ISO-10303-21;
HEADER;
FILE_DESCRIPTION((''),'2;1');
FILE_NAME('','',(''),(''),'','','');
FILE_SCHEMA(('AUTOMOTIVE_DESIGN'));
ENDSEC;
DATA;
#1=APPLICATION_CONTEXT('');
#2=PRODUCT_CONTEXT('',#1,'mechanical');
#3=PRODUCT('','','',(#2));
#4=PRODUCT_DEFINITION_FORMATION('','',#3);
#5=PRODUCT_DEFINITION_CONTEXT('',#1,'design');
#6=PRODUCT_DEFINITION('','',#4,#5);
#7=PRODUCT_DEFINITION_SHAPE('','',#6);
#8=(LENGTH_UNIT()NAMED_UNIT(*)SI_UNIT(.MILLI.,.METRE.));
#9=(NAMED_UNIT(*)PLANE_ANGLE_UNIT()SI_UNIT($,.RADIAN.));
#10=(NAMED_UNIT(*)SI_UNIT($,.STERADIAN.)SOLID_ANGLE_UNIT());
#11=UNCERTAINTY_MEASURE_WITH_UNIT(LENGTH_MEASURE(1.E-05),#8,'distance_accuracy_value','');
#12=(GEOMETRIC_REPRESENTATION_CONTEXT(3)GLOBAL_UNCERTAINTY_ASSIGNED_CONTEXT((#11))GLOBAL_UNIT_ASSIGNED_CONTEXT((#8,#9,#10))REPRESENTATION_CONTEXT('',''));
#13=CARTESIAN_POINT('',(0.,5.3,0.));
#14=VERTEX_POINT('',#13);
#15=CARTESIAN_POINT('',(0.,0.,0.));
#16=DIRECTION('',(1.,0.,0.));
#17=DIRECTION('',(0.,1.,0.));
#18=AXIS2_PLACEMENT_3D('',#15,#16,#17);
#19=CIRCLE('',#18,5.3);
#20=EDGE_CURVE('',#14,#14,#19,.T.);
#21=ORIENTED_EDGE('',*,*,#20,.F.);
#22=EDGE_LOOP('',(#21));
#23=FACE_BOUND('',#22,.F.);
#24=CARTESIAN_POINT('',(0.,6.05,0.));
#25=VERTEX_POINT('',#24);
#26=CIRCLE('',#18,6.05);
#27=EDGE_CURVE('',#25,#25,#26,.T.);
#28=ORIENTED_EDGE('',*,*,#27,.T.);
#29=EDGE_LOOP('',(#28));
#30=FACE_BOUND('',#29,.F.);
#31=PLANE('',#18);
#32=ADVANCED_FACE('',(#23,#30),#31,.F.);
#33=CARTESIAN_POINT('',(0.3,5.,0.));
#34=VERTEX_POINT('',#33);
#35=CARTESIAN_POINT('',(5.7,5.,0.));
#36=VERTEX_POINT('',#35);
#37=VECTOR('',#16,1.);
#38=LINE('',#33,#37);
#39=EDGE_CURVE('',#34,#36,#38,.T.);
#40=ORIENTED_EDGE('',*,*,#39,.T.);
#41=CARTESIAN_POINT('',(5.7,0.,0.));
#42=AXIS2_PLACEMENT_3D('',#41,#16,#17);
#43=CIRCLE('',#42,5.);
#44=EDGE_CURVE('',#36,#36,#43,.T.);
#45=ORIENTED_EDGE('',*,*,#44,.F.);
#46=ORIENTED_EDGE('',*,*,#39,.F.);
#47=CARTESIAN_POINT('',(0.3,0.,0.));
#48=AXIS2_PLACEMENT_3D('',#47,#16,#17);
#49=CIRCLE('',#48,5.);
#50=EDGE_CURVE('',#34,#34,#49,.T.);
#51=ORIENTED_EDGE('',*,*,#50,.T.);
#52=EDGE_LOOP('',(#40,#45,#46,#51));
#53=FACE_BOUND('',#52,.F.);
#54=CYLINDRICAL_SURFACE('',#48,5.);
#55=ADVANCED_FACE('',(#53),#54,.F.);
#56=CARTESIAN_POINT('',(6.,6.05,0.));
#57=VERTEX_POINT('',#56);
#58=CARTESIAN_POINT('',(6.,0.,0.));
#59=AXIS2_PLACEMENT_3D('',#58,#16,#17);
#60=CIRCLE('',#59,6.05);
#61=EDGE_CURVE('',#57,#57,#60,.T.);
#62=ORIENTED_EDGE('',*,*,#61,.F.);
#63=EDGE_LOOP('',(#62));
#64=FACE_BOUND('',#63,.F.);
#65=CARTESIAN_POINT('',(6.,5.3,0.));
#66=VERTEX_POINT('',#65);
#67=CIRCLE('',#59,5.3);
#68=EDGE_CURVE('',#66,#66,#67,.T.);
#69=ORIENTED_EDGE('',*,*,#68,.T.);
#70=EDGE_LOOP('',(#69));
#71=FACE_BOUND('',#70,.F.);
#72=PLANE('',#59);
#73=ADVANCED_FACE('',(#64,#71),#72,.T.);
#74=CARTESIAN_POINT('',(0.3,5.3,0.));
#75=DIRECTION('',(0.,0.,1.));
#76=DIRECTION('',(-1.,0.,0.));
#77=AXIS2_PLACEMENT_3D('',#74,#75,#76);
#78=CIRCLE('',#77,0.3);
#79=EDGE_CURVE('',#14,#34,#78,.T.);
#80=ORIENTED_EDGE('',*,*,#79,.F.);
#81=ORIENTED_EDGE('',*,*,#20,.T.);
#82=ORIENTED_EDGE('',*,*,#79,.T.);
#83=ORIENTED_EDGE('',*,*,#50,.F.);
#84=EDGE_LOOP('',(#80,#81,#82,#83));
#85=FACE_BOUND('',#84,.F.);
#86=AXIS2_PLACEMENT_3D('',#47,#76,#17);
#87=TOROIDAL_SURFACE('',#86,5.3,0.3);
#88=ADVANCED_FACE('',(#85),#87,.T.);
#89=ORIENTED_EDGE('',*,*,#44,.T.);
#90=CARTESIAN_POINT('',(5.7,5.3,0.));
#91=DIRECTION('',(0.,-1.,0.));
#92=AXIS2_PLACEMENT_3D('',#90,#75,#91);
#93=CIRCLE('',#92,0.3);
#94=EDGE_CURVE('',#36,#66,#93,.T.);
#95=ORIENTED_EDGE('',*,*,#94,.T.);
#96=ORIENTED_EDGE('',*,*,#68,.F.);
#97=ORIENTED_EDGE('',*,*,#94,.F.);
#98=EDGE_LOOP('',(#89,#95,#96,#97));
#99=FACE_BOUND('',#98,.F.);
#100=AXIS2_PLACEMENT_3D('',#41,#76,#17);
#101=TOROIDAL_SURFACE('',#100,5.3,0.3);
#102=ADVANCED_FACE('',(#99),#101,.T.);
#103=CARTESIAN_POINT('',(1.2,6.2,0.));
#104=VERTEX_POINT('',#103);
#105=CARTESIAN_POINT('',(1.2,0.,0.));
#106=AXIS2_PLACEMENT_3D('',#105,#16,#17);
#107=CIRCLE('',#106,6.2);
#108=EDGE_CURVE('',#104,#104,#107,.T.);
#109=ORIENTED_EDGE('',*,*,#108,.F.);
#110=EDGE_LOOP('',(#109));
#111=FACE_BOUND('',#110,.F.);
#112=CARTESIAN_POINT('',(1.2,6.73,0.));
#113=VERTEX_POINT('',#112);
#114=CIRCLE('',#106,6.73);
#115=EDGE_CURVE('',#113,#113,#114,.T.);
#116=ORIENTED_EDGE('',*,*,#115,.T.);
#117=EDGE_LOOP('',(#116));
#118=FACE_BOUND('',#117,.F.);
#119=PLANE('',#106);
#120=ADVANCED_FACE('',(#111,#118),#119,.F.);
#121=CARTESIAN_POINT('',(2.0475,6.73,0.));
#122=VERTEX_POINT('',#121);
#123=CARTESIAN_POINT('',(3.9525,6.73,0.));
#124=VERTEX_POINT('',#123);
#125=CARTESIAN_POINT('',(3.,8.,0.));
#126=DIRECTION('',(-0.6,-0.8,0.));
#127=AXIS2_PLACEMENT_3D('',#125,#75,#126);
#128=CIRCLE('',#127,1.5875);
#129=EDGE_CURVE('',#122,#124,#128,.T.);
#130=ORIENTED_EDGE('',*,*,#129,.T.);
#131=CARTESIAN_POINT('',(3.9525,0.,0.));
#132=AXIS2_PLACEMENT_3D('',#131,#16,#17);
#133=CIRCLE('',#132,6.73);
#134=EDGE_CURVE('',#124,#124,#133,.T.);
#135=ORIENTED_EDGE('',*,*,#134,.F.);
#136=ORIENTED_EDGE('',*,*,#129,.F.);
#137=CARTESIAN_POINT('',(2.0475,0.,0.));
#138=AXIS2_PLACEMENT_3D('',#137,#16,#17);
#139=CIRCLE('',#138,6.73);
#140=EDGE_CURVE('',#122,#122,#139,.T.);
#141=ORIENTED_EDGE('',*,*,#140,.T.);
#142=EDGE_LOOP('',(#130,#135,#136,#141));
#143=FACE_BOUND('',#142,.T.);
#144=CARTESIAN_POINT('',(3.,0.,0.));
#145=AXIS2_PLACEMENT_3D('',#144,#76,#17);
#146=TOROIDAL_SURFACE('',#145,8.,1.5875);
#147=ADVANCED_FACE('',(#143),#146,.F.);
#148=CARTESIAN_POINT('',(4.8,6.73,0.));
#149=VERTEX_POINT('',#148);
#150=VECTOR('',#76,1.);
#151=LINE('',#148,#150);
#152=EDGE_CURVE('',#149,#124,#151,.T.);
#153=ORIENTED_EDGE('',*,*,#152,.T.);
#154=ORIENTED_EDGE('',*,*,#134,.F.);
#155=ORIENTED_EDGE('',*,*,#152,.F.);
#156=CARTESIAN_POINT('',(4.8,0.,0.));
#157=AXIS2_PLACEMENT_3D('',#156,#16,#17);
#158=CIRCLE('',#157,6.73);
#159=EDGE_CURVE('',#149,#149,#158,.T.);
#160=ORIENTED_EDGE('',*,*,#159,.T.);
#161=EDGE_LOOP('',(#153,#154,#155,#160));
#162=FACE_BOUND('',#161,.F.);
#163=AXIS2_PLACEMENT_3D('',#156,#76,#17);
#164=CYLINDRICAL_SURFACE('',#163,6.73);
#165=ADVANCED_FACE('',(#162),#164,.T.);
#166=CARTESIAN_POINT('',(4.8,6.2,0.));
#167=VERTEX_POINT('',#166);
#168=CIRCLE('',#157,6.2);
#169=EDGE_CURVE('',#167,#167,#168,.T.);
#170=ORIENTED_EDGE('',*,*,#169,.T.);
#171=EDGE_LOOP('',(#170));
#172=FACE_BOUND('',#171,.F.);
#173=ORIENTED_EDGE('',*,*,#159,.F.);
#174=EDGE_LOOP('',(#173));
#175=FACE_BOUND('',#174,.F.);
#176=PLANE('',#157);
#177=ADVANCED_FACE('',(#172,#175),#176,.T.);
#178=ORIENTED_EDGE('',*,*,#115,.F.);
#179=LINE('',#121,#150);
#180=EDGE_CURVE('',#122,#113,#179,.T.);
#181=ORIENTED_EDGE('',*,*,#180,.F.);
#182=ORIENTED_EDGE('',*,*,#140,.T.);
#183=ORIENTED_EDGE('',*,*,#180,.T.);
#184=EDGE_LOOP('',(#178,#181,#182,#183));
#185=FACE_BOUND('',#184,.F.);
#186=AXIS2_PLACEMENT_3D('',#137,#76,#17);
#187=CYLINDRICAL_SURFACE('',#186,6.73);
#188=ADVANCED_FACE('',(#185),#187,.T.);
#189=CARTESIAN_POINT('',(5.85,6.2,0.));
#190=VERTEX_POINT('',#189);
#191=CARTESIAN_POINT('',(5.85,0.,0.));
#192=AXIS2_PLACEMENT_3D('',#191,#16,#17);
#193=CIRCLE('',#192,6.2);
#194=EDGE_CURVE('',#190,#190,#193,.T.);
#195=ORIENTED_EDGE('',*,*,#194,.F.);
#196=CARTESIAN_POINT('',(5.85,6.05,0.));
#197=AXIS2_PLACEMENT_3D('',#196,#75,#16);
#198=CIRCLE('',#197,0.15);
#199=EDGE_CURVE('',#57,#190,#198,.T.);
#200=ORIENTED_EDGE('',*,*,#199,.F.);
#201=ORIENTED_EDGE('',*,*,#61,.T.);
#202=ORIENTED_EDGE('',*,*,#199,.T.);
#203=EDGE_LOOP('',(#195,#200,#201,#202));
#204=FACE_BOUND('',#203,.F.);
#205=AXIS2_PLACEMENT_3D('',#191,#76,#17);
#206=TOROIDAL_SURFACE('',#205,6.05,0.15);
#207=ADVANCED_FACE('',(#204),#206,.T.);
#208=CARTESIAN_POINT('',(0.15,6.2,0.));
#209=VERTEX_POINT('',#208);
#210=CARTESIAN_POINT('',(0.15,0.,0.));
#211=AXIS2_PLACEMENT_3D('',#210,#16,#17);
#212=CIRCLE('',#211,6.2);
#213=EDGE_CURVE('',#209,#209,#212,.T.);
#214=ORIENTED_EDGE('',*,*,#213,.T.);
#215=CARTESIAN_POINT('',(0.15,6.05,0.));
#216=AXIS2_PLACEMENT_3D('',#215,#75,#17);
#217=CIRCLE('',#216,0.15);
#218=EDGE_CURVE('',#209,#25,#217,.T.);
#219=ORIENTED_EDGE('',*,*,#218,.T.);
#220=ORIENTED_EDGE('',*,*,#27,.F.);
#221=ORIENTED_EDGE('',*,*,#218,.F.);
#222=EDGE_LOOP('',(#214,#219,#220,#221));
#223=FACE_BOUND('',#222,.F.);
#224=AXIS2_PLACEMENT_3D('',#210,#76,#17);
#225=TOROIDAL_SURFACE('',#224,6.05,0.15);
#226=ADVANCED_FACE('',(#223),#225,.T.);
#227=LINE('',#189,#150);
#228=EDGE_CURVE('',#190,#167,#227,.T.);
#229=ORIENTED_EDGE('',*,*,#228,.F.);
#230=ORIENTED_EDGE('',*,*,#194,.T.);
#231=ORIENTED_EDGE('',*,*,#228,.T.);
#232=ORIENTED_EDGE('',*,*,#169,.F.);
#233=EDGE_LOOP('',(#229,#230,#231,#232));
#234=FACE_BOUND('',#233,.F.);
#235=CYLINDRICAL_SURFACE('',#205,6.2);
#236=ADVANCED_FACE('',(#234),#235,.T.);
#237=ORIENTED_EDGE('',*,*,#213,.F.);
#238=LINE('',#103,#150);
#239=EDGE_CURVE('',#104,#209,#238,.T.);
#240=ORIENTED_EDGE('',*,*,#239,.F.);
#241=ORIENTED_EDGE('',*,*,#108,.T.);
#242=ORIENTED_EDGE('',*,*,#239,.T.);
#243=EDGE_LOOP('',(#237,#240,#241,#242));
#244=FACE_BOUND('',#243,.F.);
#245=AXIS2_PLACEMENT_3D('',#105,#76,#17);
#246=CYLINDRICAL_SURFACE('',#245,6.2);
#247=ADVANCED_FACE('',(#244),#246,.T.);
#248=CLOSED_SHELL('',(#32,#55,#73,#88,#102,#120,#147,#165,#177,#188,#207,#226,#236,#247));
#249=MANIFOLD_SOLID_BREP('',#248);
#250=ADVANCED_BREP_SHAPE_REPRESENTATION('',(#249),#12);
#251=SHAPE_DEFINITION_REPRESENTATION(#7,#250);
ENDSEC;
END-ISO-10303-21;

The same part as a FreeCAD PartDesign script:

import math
import FreeCAD as App
import Part
import Sketcher
Q = App.Units.Quantity

doc = App.newDocument("Part")
body = doc.addObject("PartDesign::Body", "Body")

sketch1 = body.newObject("Sketcher::SketchObject", "Sketch")
sketch1.AttachmentSupport = (doc.getObject("XY_Plane"), [""])
sketch1.MapMode = "FlatFace"
sketch1.addGeometry(Part.ArcOfCircle(Part.Circle(App.Vector(0.15, 6.05, 0), App.Vector(0, 0, 1), 0.15), math.radians(90), math.radians(180)), False)
sketch1.addGeometry(Part.LineSegment(App.Vector(0, 6.05, 0), App.Vector(0, 5.3, 0)), False)
sketch1.addGeometry(Part.ArcOfCircle(Part.Circle(App.Vector(0.3, 5.3, 0), App.Vector(0, 0, 1), 0.3), math.radians(180), math.radians(270)), False)
sketch1.addGeometry(Part.LineSegment(App.Vector(0.3, 5, 0), App.Vector(5.7, 5, 0)), False)
sketch1.addGeometry(Part.ArcOfCircle(Part.Circle(App.Vector(5.7, 5.3, 0), App.Vector(0, 0, 1), 0.3), math.radians(-90), math.radians(0)), False)
sketch1.addGeometry(Part.LineSegment(App.Vector(6, 5.3, 0), App.Vector(6, 6.05, 0)), False)
sketch1.addGeometry(Part.ArcOfCircle(Part.Circle(App.Vector(5.85, 6.05, 0), App.Vector(0, 0, 1), 0.15), math.radians(0), math.radians(90)), False)
sketch1.addGeometry(Part.LineSegment(App.Vector(5.85, 6.2, 0), App.Vector(4.8, 6.2, 0)), False)
sketch1.addGeometry(Part.LineSegment(App.Vector(4.8, 6.2, 0), App.Vector(4.8, 6.73, 0)), False)
sketch1.addGeometry(Part.LineSegment(App.Vector(4.8, 6.73, 0), App.Vector(3.9525, 6.73, 0)), False)
sketch1.addGeometry(Part.ArcOfCircle(Part.Circle(App.Vector(3, 8, 0), App.Vector(0, 0, 1), 1.5875), math.radians(-126.869898), math.radians(-53.130102)), False)
sketch1.addGeometry(Part.LineSegment(App.Vector(2.0475, 6.73, 0), App.Vector(1.2, 6.73, 0)), False)
sketch1.addGeometry(Part.LineSegment(App.Vector(1.2, 6.73, 0), App.Vector(1.2, 6.2, 0)), False)
sketch1.addGeometry(Part.LineSegment(App.Vector(1.2, 6.2, 0), App.Vector(0.15, 6.2, 0)), False)
sketch1.addConstraint(Sketcher.Constraint("Tangent", 0, 2, 1, 1))
sketch1.addConstraint(Sketcher.Constraint("Tangent", 1, 2, 2, 1))
sketch1.addConstraint(Sketcher.Constraint("Tangent", 2, 2, 3, 1))
sketch1.addConstraint(Sketcher.Constraint("Tangent", 3, 2, 4, 1))
sketch1.addConstraint(Sketcher.Constraint("Tangent", 4, 2, 5, 1))
sketch1.addConstraint(Sketcher.Constraint("Tangent", 5, 2, 6, 1))
sketch1.addConstraint(Sketcher.Constraint("Tangent", 6, 2, 7, 1))
sketch1.addConstraint(Sketcher.Constraint("Coincident", 7, 2, 8, 1))
sketch1.addConstraint(Sketcher.Constraint("Coincident", 8, 2, 9, 1))
sketch1.addConstraint(Sketcher.Constraint("Coincident", 9, 2, 10, 2))
sketch1.addConstraint(Sketcher.Constraint("Coincident", 10, 1, 11, 1))
sketch1.addConstraint(Sketcher.Constraint("Coincident", 11, 2, 12, 1))
sketch1.addConstraint(Sketcher.Constraint("Coincident", 12, 2, 13, 1))
sketch1.addConstraint(Sketcher.Constraint("Tangent", 13, 2, 0, 1))
sketch1.addConstraint(Sketcher.Constraint("Vertical", 1))
sketch1.addConstraint(Sketcher.Constraint("Horizontal", 3))
sketch1.addConstraint(Sketcher.Constraint("Vertical", 5))
sketch1.addConstraint(Sketcher.Constraint("Horizontal", 7))
sketch1.addConstraint(Sketcher.Constraint("Vertical", 8))
sketch1.addConstraint(Sketcher.Constraint("Horizontal", 9))
sketch1.addConstraint(Sketcher.Constraint("Horizontal", 11))
sketch1.addConstraint(Sketcher.Constraint("Vertical", 12))
sketch1.addConstraint(Sketcher.Constraint("Horizontal", 13))
sketch1.addConstraint(Sketcher.Constraint("Equal", 2, 4))
sketch1.addConstraint(Sketcher.Constraint("Equal", 0, 6))
sketch1.addConstraint(Sketcher.Constraint("PointOnObject", 0, 2, -2))
sketch1.addConstraint(Sketcher.Constraint("Horizontal", 0, 3, 6, 3))
sketch1.addConstraint(Sketcher.Constraint("Horizontal", 9, 2, 10, 1))
sketch1.addConstraint(Sketcher.Constraint("Equal", 9, 11))
sketch1.addConstraint(Sketcher.Constraint("Equal", 7, 13))
sketch1.addConstraint(Sketcher.Constraint("Radius", 2, Q("0.3 mm")))
sketch1.addConstraint(Sketcher.Constraint("Radius", 0, Q("0.15 mm")))
sketch1.addConstraint(Sketcher.Constraint("DistanceX", 3, 1, 3, 2, Q("5.4 mm")))
sketch1.addConstraint(Sketcher.Constraint("DistanceY", -1, 1, 10, 3, Q("8 mm")))
sketch1.addConstraint(Sketcher.Constraint("DistanceY", -1, 1, 2, 2, Q("5 mm")))
sketch1.addConstraint(Sketcher.Constraint("DistanceX", 7, 2, 7, 1, Q("1.05 mm")))
sketch1.addConstraint(Sketcher.Constraint("DistanceY", 1, 2, 1, 1, Q("0.75 mm")))
sketch1.addConstraint(Sketcher.Constraint("DistanceY", 8, 1, 8, 2, Q("0.53 mm")))
sketch1.addConstraint(Sketcher.Constraint("Radius", 10, Q("1.5875 mm")))
revolution = body.newObject("PartDesign::Revolution", "Revolution")
revolution.Profile = sketch1
revolution.ReferenceAxis = (sketch1, ["H_Axis"])
revolution.Angle = 360

doc.recompute()
